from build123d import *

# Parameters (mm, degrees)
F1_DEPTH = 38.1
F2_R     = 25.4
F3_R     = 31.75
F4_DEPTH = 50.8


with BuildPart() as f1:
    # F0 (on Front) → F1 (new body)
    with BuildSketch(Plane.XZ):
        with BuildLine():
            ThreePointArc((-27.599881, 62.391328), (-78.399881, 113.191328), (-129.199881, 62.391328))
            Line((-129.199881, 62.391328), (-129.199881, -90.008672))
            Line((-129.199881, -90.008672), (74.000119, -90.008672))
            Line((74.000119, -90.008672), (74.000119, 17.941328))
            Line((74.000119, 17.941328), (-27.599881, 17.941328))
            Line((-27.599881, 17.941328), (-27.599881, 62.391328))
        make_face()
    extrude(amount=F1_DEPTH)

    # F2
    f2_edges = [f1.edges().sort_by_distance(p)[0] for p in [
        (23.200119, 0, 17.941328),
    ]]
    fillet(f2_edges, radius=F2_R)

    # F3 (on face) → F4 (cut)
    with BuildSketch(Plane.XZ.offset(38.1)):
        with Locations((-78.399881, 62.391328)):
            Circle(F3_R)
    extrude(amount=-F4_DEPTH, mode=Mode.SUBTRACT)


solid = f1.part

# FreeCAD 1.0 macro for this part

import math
import FreeCAD as App
import Part
import Sketcher
Q = App.Units.Quantity


def edges_at(feature, points):
    """Names of the edges that pass closest to the given points."""
    edges = feature.Shape.Edges
    near = lambda p: min(range(len(edges)), key=lambda i: edges[i].distToShape(Part.Vertex(*p))[0])
    return sorted({f"Edge{near(p) + 1}" for p in points})

doc = App.newDocument("Part")
body = doc.addObject("PartDesign::Body", "Body")

sketch1 = doc.addObject("Sketcher::SketchObject", "Sketch")
body.addObject(sketch1)
sketch1.AttachmentSupport = (doc.XZ_Plane, [""])
sketch1.MapMode = "FlatFace"
sketch1.addGeometry([
    Part.ArcOfCircle(Part.Circle(App.Vector(-78.399881, 62.391328, 0), App.Vector(0, 0, 1), 50.8), math.radians(0), math.radians(180)),
    Part.LineSegment(App.Vector(-129.199881, 62.391328, 0), App.Vector(-129.199881, -90.008672, 0)),
    Part.LineSegment(App.Vector(-129.199881, -90.008672, 0), App.Vector(74.000119, -90.008672, 0)),
    Part.LineSegment(App.Vector(74.000119, -90.008672, 0), App.Vector(74.000119, 17.941328, 0)),
    Part.LineSegment(App.Vector(74.000119, 17.941328, 0), App.Vector(-27.599881, 17.941328, 0)),
    Part.LineSegment(App.Vector(-27.599881, 17.941328, 0), App.Vector(-27.599881, 62.391328, 0)),
], False)
sketch1.addConstraint([
    Sketcher.Constraint("Tangent", 0, 2, 1, 1),
    Sketcher.Constraint("Coincident", 1, 2, 2, 1),
    Sketcher.Constraint("Coincident", 2, 2, 3, 1),
    Sketcher.Constraint("Coincident", 3, 2, 4, 1),
    Sketcher.Constraint("Coincident", 4, 2, 5, 1),
    Sketcher.Constraint("Tangent", 5, 2, 0, 1),
    Sketcher.Constraint("Vertical", 1),
    Sketcher.Constraint("Horizontal", 2),
    Sketcher.Constraint("Vertical", 3),
    Sketcher.Constraint("Horizontal", 4),
    Sketcher.Constraint("Vertical", 5),
    Sketcher.Constraint("Radius", 0, Q("2 in")),
    Sketcher.Constraint("DistanceX", 2, 1, 2, 2, Q("8 in")),
    Sketcher.Constraint("DistanceY", 1, 2, 1, 1, Q("6 in")),
    Sketcher.Constraint("DistanceY", 3, 1, 3, 2, Q("4.25 in")),
    Sketcher.Constraint("DistanceX", 0, 3, -1, 1, Q("78.399881 mm")),
    Sketcher.Constraint("DistanceY", -1, 1, 0, 2, Q("62.391328 mm")),
])
pad1 = doc.addObject("PartDesign::Pad", "Pad")
body.addObject(pad1)
pad1.Profile = sketch1
pad1.Length = Q("1.5 in")
doc.recompute()

fillet = doc.addObject("PartDesign::Fillet", "Fillet")
body.addObject(fillet)
fillet.Base = (pad1, edges_at(pad1, [(23.2, 0, 17.941)]))
fillet.Radius = Q("1 in")

sketch2 = doc.addObject("Sketcher::SketchObject", "Sketch001")
body.addObject(sketch2)
sketch2.AttachmentSupport = (doc.XZ_Plane, [""])
sketch2.MapMode = "FlatFace"
sketch2.AttachmentOffset = App.Placement(App.Vector(0, 0, 1.5 * 25.4), App.Rotation())
sketch2.addGeometry(Part.Circle(App.Vector(-78.399881, 62.391328, 0), App.Vector(0, 0, 1), 31.75), False)
sketch2.addConstraint([
    Sketcher.Constraint("Diameter", 0, Q("2.5 in")),
    Sketcher.Constraint("DistanceX", 0, 3, -1, 1, Q("78.399881 mm")),
    Sketcher.Constraint("DistanceY", -1, 1, 0, 3, Q("62.391328 mm")),
])
pocket1 = doc.addObject("PartDesign::Pocket", "Pocket")
body.addObject(pocket1)
pocket1.Profile = sketch2
pocket1.Length = Q("2 in")

doc.recompute()
